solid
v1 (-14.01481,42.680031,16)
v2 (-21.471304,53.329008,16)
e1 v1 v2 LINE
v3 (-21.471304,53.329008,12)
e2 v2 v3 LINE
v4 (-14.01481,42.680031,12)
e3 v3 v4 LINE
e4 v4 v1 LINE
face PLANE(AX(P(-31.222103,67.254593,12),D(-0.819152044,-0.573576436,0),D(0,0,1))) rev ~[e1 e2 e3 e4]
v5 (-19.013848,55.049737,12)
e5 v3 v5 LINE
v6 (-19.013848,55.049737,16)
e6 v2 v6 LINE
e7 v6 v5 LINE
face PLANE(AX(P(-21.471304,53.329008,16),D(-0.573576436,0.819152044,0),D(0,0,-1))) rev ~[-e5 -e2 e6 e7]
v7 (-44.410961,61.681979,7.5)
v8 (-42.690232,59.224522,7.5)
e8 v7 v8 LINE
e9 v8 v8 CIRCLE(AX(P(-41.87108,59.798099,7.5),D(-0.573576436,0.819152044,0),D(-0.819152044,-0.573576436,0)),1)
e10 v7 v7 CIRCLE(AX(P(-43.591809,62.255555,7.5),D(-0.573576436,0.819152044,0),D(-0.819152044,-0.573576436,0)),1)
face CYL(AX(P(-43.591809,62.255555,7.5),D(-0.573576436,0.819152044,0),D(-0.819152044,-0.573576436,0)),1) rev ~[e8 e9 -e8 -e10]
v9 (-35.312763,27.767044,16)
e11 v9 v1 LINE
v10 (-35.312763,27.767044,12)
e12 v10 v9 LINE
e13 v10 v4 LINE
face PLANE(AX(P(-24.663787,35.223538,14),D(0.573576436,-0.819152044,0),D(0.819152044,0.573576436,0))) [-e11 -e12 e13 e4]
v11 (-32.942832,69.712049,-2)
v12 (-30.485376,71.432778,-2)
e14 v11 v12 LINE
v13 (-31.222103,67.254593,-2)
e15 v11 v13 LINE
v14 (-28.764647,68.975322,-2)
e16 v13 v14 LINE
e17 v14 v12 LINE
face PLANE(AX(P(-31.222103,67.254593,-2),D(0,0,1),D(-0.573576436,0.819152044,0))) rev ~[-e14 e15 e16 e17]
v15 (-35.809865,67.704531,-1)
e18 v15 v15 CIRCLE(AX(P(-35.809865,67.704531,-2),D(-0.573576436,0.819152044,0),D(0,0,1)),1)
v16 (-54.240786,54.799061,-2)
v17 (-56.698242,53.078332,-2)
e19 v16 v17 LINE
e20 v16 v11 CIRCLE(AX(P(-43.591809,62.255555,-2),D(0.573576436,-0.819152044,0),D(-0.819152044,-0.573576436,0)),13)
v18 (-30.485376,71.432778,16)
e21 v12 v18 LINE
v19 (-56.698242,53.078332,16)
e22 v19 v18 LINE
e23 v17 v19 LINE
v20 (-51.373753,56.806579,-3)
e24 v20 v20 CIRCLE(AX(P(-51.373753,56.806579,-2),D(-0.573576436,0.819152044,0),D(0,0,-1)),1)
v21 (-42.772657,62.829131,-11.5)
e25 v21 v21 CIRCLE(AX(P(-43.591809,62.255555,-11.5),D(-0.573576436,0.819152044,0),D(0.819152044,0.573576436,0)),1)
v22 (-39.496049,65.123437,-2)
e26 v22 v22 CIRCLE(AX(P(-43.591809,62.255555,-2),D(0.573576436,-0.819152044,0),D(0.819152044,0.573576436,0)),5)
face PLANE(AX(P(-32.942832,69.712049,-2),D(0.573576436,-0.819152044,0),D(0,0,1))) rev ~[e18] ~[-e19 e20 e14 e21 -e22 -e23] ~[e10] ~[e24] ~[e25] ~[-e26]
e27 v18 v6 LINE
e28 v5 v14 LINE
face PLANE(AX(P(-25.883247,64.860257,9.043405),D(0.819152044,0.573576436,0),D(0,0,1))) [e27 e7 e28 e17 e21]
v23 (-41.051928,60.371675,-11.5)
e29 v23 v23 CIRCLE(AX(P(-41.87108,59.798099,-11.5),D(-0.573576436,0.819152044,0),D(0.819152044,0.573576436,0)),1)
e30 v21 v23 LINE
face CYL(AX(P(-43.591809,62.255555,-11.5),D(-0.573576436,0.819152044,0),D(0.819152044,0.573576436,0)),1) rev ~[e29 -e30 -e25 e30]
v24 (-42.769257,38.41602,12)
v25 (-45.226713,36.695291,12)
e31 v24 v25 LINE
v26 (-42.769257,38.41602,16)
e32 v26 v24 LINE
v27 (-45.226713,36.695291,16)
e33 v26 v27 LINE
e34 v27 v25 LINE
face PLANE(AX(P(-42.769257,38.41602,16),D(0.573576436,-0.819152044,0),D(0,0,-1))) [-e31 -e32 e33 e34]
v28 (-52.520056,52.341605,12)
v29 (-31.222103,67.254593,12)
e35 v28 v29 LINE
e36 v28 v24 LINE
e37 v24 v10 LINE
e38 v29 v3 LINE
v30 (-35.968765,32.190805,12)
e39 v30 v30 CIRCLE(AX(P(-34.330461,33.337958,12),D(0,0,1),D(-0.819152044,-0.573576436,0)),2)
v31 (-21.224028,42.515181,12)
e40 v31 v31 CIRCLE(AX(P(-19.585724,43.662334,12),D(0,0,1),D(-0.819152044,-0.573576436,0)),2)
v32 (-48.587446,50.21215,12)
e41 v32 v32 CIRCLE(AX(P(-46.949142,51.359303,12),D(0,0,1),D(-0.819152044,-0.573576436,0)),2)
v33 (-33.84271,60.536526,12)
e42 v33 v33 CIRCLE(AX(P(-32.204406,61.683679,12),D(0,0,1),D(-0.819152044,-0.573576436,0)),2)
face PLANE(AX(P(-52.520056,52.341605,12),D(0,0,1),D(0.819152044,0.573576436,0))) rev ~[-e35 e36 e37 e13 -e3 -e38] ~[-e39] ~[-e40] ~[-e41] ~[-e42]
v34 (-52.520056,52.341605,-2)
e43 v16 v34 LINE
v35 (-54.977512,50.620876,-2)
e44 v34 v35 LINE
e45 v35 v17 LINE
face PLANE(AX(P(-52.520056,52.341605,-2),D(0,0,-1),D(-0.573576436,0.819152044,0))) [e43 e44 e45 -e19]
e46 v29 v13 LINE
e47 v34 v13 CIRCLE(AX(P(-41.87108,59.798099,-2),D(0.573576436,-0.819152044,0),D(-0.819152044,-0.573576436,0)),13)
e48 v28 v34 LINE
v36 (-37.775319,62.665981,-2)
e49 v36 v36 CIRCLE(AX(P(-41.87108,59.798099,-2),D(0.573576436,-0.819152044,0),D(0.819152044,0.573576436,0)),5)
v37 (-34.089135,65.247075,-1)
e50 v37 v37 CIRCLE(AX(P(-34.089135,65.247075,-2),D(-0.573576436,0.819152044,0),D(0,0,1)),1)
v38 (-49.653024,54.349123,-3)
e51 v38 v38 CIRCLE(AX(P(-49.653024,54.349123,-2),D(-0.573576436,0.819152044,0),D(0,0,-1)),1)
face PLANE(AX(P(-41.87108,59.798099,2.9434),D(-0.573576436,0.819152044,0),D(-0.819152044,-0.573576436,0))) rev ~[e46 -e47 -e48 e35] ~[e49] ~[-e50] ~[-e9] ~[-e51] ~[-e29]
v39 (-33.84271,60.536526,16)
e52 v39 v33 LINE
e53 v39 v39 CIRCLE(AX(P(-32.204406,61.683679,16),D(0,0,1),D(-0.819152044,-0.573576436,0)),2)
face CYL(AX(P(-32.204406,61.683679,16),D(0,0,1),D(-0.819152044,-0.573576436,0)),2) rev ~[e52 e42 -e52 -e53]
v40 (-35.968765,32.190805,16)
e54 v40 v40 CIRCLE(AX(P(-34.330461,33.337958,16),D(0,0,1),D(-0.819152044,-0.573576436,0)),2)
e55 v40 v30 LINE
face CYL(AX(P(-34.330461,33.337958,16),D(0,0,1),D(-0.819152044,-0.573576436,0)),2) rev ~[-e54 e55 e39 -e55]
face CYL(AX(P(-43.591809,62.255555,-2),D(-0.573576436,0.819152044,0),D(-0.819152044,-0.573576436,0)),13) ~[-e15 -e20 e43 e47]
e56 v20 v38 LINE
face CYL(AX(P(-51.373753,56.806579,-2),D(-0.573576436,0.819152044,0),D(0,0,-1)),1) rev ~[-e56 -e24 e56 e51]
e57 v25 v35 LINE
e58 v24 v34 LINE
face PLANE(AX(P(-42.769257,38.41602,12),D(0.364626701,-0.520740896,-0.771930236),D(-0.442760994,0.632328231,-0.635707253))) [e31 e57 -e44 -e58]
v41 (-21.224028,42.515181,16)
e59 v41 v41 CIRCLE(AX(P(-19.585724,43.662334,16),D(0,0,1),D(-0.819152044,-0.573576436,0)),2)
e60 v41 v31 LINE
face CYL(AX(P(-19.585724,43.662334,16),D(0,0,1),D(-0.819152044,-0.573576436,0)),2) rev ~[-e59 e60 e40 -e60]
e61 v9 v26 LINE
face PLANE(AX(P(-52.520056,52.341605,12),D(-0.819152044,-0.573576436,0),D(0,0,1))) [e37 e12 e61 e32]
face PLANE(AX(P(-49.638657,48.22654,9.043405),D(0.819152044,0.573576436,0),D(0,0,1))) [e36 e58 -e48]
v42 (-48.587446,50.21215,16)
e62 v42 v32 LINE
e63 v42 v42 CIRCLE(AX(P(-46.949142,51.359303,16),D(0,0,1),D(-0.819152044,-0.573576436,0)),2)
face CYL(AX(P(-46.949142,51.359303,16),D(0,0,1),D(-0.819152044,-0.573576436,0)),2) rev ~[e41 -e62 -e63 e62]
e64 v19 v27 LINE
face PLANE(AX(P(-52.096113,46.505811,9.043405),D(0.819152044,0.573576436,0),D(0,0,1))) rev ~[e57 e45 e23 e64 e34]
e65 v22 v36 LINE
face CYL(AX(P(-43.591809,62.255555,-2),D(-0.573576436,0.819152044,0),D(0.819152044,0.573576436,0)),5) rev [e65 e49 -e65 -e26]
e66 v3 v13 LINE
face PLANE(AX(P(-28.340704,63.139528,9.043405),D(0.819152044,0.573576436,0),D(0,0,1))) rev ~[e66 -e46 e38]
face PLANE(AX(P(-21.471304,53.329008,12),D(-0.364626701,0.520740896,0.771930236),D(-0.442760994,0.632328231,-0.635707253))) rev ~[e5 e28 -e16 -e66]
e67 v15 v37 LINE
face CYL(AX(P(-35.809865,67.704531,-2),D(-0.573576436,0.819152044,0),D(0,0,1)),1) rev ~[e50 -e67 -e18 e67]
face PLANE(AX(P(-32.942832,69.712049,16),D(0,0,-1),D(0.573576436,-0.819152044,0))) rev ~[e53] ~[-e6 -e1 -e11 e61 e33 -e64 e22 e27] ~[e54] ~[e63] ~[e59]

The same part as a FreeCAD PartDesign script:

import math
import FreeCAD as App
import Part
import Sketcher

V = App.Vector
Q = App.Units.Quantity

doc = App.newDocument("Part")
params = doc.addObject("Spreadsheet::Sheet", "Params")
for row, (alias, value) in enumerate([
    ("sketch1_diameter", "10 mm"),
    ("sketch1_radius", "13 mm"),
    ("sketch1_height", "18 mm"),
    ("pad1_length", "3 mm"),
    ("sketch2_width", "26 mm"),
    ("sketch2_height", "4 mm"),
    ("pad2_length", "30 mm"),
    ("sketch3_diameter", "4 mm"),
    ("sketch4_diameter", "2 mm"),
    ("sketch5_width", "3 mm"),
    ("sketch5_width2", "20 mm"),
    ("sketch5_height", "18 mm"),
    ("sketch5_height2", "4 mm"),
    ("pad3_length", "3 mm"),
    ("sketch6_width", "20 mm"),
    ("sketch6_width2", "3 mm"),
    ("sketch6_height", "18 mm"),
    ("sketch6_height2", "4 mm"),
    ("pad4_length", "3 mm"),
], start=1):
    params.set(f"A{row}", alias)
    params.set(f"B{row}", "=" + value)
    params.setAlias(f"B{row}", alias)

body = doc.addObject("PartDesign::Body", "Body")

sketch1 = body.newObject("Sketcher::SketchObject", "Sketch")
sketch1.AttachmentSupport = (doc.getObject("XZ_Plane"), [""])
sketch1.MapMode = "FlatFace"
sketch1.addGeometry(Part.LineSegment(V(13, 18, 0), V(-13, 18, 0)), False)
sketch1.addGeometry(Part.LineSegment(V(-13, 18, 0), V(-13, 0, 0)), False)
sketch1.addGeometry(Part.ArcOfCircle(Part.Circle(V(0, 0, 0), V(0, 0, 1), 13), math.radians(180), math.radians(360)), False)
sketch1.addGeometry(Part.LineSegment(V(13, 0, 0), V(13, 18, 0)), False)
sketch1.addGeometry(Part.Circle(V(0, 0, 0), V(0, 0, 1), 5), False)
sketch1.addConstraint(Sketcher.Constraint("Coincident", 0, 2, 1, 1))
sketch1.addConstraint(Sketcher.Constraint("Tangent", 1, 2, 2, 1))
sketch1.addConstraint(Sketcher.Constraint("Tangent", 2, 2, 3, 1))
sketch1.addConstraint(Sketcher.Constraint("Coincident", 3, 2, 0, 1))
sketch1.addConstraint(Sketcher.Constraint("Horizontal", 0))
sketch1.addConstraint(Sketcher.Constraint("Vertical", 1))
sketch1.addConstraint(Sketcher.Constraint("Vertical", 3))
sketch1.addConstraint(Sketcher.Constraint("Coincident", 2, 3, -1, 1))
sketch1.addConstraint(Sketcher.Constraint("Coincident", 4, 3, -1, 1))
sketch1.addConstraint(Sketcher.Constraint("Diameter", 4, Q("10 mm")))
sketch1.addConstraint(Sketcher.Constraint("Radius", 2, Q("13 mm")))
sketch1.addConstraint(Sketcher.Constraint("DistanceY", 1, 2, 1, 1, Q("18 mm")))
sketch1.setExpression("Constraints[9]", "Params.sketch1_diameter")
sketch1.setExpression("Constraints[10]", "Params.sketch1_radius")
sketch1.setExpression("Constraints[11]", "Params.sketch1_height")
pad1 = body.newObject("PartDesign::Pad", "Pad")
pad1.Profile = sketch1
pad1.setExpression("Length", "Params.pad1_length")

sketch2 = body.newObject("Sketcher::SketchObject", "Sketch001")
sketch2.AttachmentSupport = (doc.getObject("XZ_Plane"), [""])
sketch2.MapMode = "FlatFace"
sketch2.AttachmentOffset = App.Placement(V(0, 0, 3), App.Rotation())
sketch2.addGeometry(Part.LineSegment(V(-13, 18, 0), V(-13, 14, 0)), False)
sketch2.addGeometry(Part.LineSegment(V(-13, 14, 0), V(13, 14, 0)), False)
sketch2.addGeometry(Part.LineSegment(V(13, 14, 0), V(13, 18, 0)), False)
sketch2.addGeometry(Part.LineSegment(V(13, 18, 0), V(-13, 18, 0)), False)
sketch2.addConstraint(Sketcher.Constraint("Coincident", 0, 2, 1, 1))
sketch2.addConstraint(Sketcher.Constraint("Coincident", 1, 2, 2, 1))
sketch2.addConstraint(Sketcher.Constraint("Coincident", 2, 2, 3, 1))
sketch2.addConstraint(Sketcher.Constraint("Coincident", 3, 2, 0, 1))
sketch2.addConstraint(Sketcher.Constraint("Vertical", 0))
sketch2.addConstraint(Sketcher.Constraint("Horizontal", 1))
sketch2.addConstraint(Sketcher.Constraint("Vertical", 2))
sketch2.addConstraint(Sketcher.Constraint("Horizontal", 3))
sketch2.addConstraint(Sketcher.Constraint("DistanceX", 1, 1, 1, 2, Q("26 mm")))
sketch2.addConstraint(Sketcher.Constraint("DistanceY", 0, 2, 0, 1, Q("4 mm")))
sketch2.addConstraint(Sketcher.Constraint("DistanceX", 0, 2, -1, 1, Q("13 mm")))
sketch2.addConstraint(Sketcher.Constraint("DistanceY", -1, 1, 0, 2, Q("14 mm")))
sketch2.setExpression("Constraints[8]", "Params.sketch2_width")
sketch2.setExpression("Constraints[9]", "Params.sketch2_height")
pad2 = body.newObject("PartDesign::Pad", "Pad001")
pad2.Profile = sketch2
pad2.setExpression("Length", "Params.pad2_length")

sketch3 = body.newObject("Sketcher::SketchObject", "Sketch002")
sketch3.AttachmentSupport = (doc.getObject("XY_Plane"), [""])
sketch3.MapMode = "FlatFace"
sketch3.AttachmentOffset = App.Placement(V(0, 0, 18), App.Rotation())
sketch3.addGeometry(Part.Circle(V(9, -7, 0), V(0, 0, 1), 2), False)
sketch3.addGeometry(Part.Circle(V(-9, -7, 0), V(0, 0, 1), 2), False)
sketch3.addGeometry(Part.Circle(V(9, -29, 0), V(0, 0, 1), 2), False)
sketch3.addGeometry(Part.Circle(V(-9, -29, 0), V(0, 0, 1), 2), False)
sketch3.addConstraint(Sketcher.Constraint("Equal", 0, 1))
sketch3.addConstraint(Sketcher.Constraint("Equal", 1, 2))
sketch3.addConstraint(Sketcher.Constraint("Equal", 2, 3))
sketch3.addConstraint(Sketcher.Constraint("Symmetric", 0, 3, 1, 3, -2))
sketch3.addConstraint(Sketcher.Constraint("Symmetric", 2, 3, 3, 3, -2))
sketch3.addConstraint(Sketcher.Constraint("Vertical", 0, 3, 2, 3))
sketch3.addConstraint(Sketcher.Constraint("Diameter", 0, Q("4 mm")))
sketch3.addConstraint(Sketcher.Constraint("DistanceX", -1, 1, 0, 3, Q("9 mm")))
sketch3.addConstraint(Sketcher.Constraint("DistanceY", 0, 3, -1, 1, Q("7 mm")))
sketch3.addConstraint(Sketcher.Constraint("DistanceY", 2, 3, -1, 1, Q("29 mm")))
sketch3.setExpression("Constraints[6]", "Params.sketch3_diameter")
pocket1 = body.newObject("PartDesign::Pocket", "Pocket")
pocket1.Profile = sketch3
pocket1.Type = "ThroughAll"

sketch4 = body.newObject("Sketcher::SketchObject", "Sketch003")
sketch4.AttachmentSupport = (doc.getObject("XZ_Plane"), [""])
sketch4.MapMode = "FlatFace"
sketch4.addGeometry(Part.Circle(V(0, -9.5, 0), V(0, 0, 1), 1), False)
sketch4.addConstraint(Sketcher.Constraint("PointOnObject", 0, 3, -2))
sketch4.addConstraint(Sketcher.Constraint("Diameter", 0, Q("2 mm")))
sketch4.addConstraint(Sketcher.Constraint("DistanceY", 0, 3, -1, 1, Q("9.5 mm")))
sketch4.setExpression("Constraints[1]", "Params.sketch4_diameter")
pocket2 = body.newObject("PartDesign::Pocket", "Pocket001")
pocket2.Profile = sketch4
pocket2.Type = "ThroughAll"
pocket2.Reversed = True
doc.recompute()

polarpattern = body.newObject("PartDesign::PolarPattern", "PolarPattern")
polarpattern.Originals = [pocket2]
polarpattern.Axis = (doc.getObject("Y_Axis"), [""])
polarpattern.Angle = 360
polarpattern.Occurrences = 4
body.Tip = polarpattern

sketch5 = body.newObject("Sketcher::SketchObject", "Sketch004")
sketch5.AttachmentSupport = (doc.getObject("YZ_Plane"), [""])
sketch5.MapMode = "FlatFace"
sketch5.AttachmentOffset = App.Placement(V(0, 0, -13), App.Rotation())
sketch5.addGeometry(Part.LineSegment(V(0, 18, 0), V(0, 0, 0)), False)
sketch5.addGeometry(Part.LineSegment(V(0, 0, 0), V(-3, 0, 0)), False)
sketch5.addGeometry(Part.LineSegment(V(-3, 0, 0), V(-20, 14, 0)), False)
sketch5.addGeometry(Part.LineSegment(V(-20, 14, 0), V(-20, 18, 0)), False)
sketch5.addGeometry(Part.LineSegment(V(-20, 18, 0), V(0, 18, 0)), False)
sketch5.addConstraint(Sketcher.Constraint("Coincident", 0, 2, 1, 1))
sketch5.addConstraint(Sketcher.Constraint("Coincident", 1, 2, 2, 1))
sketch5.addConstraint(Sketcher.Constraint("Coincident", 2, 2, 3, 1))
sketch5.addConstraint(Sketcher.Constraint("Coincident", 3, 2, 4, 1))
sketch5.addConstraint(Sketcher.Constraint("Coincident", 4, 2, 0, 1))
sketch5.addConstraint(Sketcher.Constraint("Vertical", 0))
sketch5.addConstraint(Sketcher.Constraint("Horizontal", 1))
sketch5.addConstraint(Sketcher.Constraint("Vertical", 3))
sketch5.addConstraint(Sketcher.Constraint("Horizontal", 4))
sketch5.addConstraint(Sketcher.Constraint("Coincident", 0, 2, -1, 1))
sketch5.addConstraint(Sketcher.Constraint("DistanceX", 1, 2, 1, 1, Q("3 mm")))
sketch5.addConstraint(Sketcher.Constraint("DistanceX", 4, 1, 4, 2, Q("20 mm")))
sketch5.addConstraint(Sketcher.Constraint("DistanceY", 0, 2, 0, 1, Q("18 mm")))
sketch5.addConstraint(Sketcher.Constraint("DistanceY", 3, 1, 3, 2, Q("4 mm")))
sketch5.setExpression("Constraints[10]", "Params.sketch5_width")
sketch5.setExpression("Constraints[11]", "Params.sketch5_width2")
sketch5.setExpression("Constraints[12]", "Params.sketch5_height")
sketch5.setExpression("Constraints[13]", "Params.sketch5_height2")
pad3 = body.newObject("PartDesign::Pad", "Pad002")
pad3.Profile = sketch5
pad3.setExpression("Length", "Params.pad3_length")
pad3.Reversed = True

sketch6 = body.newObject("Sketcher::SketchObject", "Sketch005")
sketch6.AttachmentSupport = (doc.getObject("YZ_Plane"), [""])
sketch6.MapMode = "FlatFace"
sketch6.AttachmentOffset = App.Placement(V(0, 0, 13), App.Rotation())
sketch6.addGeometry(Part.LineSegment(V(0, 0, 0), V(0, 18, 0)), False)
sketch6.addGeometry(Part.LineSegment(V(0, 18, 0), V(-20, 18, 0)), False)
sketch6.addGeometry(Part.LineSegment(V(-20, 18, 0), V(-20, 14, 0)), False)
sketch6.addGeometry(Part.LineSegment(V(-20, 14, 0), V(-3, 0, 0)), False)
sketch6.addGeometry(Part.LineSegment(V(-3, 0, 0), V(0, 0, 0)), False)
sketch6.addConstraint(Sketcher.Constraint("Coincident", 0, 2, 1, 1))
sketch6.addConstraint(Sketcher.Constraint("Coincident", 1, 2, 2, 1))
sketch6.addConstraint(Sketcher.Constraint("Coincident", 2, 2, 3, 1))
sketch6.addConstraint(Sketcher.Constraint("Coincident", 3, 2, 4, 1))
sketch6.addConstraint(Sketcher.Constraint("Coincident", 4, 2, 0, 1))
sketch6.addConstraint(Sketcher.Constraint("Vertical", 0))
sketch6.addConstraint(Sketcher.Constraint("Horizontal", 1))
sketch6.addConstraint(Sketcher.Constraint("Vertical", 2))
sketch6.addConstraint(Sketcher.Constraint("Horizontal", 4))
sketch6.addConstraint(Sketcher.Constraint("Coincident", 4, 2, -1, 1))
sketch6.addConstraint(Sketcher.Constraint("DistanceX", 1, 2, 1, 1, Q("20 mm")))
sketch6.addConstraint(Sketcher.Constraint("DistanceX", 4, 1, 4, 2, Q("3 mm")))
sketch6.addConstraint(Sketcher.Constraint("DistanceY", 0, 1, 0, 2, Q("18 mm")))
sketch6.addConstraint(Sketcher.Constraint("DistanceY", 2, 2, 2, 1, Q("4 mm")))
sketch6.setExpression("Constraints[10]", "Params.sketch6_width")
sketch6.setExpression("Constraints[11]", "Params.sketch6_width2")
sketch6.setExpression("Constraints[12]", "Params.sketch6_height")
sketch6.setExpression("Constraints[13]", "Params.sketch6_height2")
pad4 = body.newObject("PartDesign::Pad", "Pad003")
pad4.Profile = sketch6
pad4.setExpression("Length", "Params.pad4_length")
body2 = doc.addObject("PartDesign::Body", "Body001")
doc.recompute()

body.Placement = App.Placement(V(-43.591809, 62.255555, -2), App.Rotation(V(0, 0, 1), 35))
boolean = body2.newObject("PartDesign::Boolean", "Boolean")
boolean.Type = "Fuse"
boolean.addObjects([body])

doc.recompute()
